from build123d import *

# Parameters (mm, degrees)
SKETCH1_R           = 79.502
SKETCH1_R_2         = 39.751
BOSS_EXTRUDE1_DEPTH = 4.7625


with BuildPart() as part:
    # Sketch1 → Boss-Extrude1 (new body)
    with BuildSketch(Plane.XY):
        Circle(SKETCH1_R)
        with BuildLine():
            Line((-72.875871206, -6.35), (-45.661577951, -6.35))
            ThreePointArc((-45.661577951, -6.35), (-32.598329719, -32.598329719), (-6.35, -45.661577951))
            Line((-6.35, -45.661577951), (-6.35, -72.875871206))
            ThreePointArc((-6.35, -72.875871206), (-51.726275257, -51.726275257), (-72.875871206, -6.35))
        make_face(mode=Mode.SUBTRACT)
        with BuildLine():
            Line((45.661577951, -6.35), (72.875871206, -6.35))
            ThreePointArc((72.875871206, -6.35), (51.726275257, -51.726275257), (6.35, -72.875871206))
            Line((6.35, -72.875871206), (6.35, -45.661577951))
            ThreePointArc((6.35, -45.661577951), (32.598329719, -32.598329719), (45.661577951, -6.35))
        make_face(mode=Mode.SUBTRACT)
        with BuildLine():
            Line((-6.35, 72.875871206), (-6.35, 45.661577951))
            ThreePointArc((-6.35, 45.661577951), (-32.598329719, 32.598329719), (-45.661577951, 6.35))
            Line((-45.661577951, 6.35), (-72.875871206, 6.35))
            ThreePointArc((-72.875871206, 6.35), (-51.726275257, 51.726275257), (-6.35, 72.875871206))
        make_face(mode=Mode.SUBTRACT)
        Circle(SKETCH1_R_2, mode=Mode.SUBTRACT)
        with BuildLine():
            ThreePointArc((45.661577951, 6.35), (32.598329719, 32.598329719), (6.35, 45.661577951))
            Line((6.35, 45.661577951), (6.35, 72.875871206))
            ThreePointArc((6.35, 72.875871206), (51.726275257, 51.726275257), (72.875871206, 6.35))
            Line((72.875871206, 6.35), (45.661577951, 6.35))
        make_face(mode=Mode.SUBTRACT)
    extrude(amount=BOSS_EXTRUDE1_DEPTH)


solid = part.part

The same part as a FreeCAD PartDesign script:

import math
import FreeCAD as App
import Part
import Sketcher
from FreeCAD import Vector
Q = App.Units.Quantity

doc = App.newDocument("Part")
body = doc.addObject("PartDesign::Body", "Body")

# Sketch on XY plane
sketch1 = body.newObject("Sketcher::SketchObject", "Sketch")
sketch1.AttachmentSupport = (doc.getObject("XY_Plane"), [""])
sketch1.MapMode = "FlatFace"
sketch1.addGeometry([
    Part.Circle(Vector(0, 0, 0), Vector(0, 0, 1), 79.502),  # 0
    Part.ArcOfCircle(Part.Circle(Vector(0, 0, 0), Vector(0, 0, 1), 73.152), math.radians(-175.020141), math.radians(-94.979859)),  # 1
    Part.LineSegment(Vector(-72.875871, -6.35, 0), Vector(-45.661578, -6.35, 0)),  # 2
    Part.ArcOfCircle(Part.Circle(Vector(0, 0, 0), Vector(0, 0, 1), 46.101), math.radians(-172.082849), math.radians(-97.917151)),  # 3
    Part.LineSegment(Vector(-6.35, -45.661578, 0), Vector(-6.35, -72.875871, 0)),  # 4
    Part.ArcOfCircle(Part.Circle(Vector(0, 0, 0), Vector(0, 0, 1), 46.101), math.radians(-82.082849), math.radians(-7.917151)),  # 5
    Part.LineSegment(Vector(45.661578, -6.35, 0), Vector(72.875871, -6.35, 0)),  # 6
    Part.ArcOfCircle(Part.Circle(Vector(0, 0, 0), Vector(0, 0, 1), 73.152), math.radians(-85.020141), math.radians(-4.979859)),  # 7
    Part.LineSegment(Vector(6.35, -72.875871, 0), Vector(6.35, -45.661578, 0)),  # 8
    Part.ArcOfCircle(Part.Circle(Vector(0, 0, 0), Vector(0, 0, 1), 73.152), math.radians(94.979859), math.radians(175.020141)),  # 9
    Part.LineSegment(Vector(-6.35, 72.875871, 0), Vector(-6.35, 45.661578, 0)),  # 10
    Part.ArcOfCircle(Part.Circle(Vector(0, 0, 0), Vector(0, 0, 1), 46.101), math.radians(97.917151), math.radians(172.082849)),  # 11
    Part.LineSegment(Vector(-45.661578, 6.35, 0), Vector(-72.875871, 6.35, 0)),  # 12
    Part.Circle(Vector(0, 0, 0), Vector(0, 0, 1), 39.751),  # 13
    Part.LineSegment(Vector(72.875871, 6.35, 0), Vector(45.661578, 6.35, 0)),  # 14
    Part.ArcOfCircle(Part.Circle(Vector(0, 0, 0), Vector(0, 0, 1), 46.101), math.radians(7.917151), math.radians(82.082849)),  # 15
    Part.LineSegment(Vector(6.35, 45.661578, 0), Vector(6.35, 72.875871, 0)),  # 16
    Part.ArcOfCircle(Part.Circle(Vector(0, 0, 0), Vector(0, 0, 1), 73.152), math.radians(4.979859), math.radians(85.020141)),  # 17
], False)
sketch1.addConstraint([
    Sketcher.Constraint("Coincident", 1, 1, 2, 1),
    Sketcher.Constraint("Coincident", 2, 2, 3, 1),
    Sketcher.Constraint("Coincident", 3, 2, 4, 1),
    Sketcher.Constraint("Coincident", 4, 2, 1, 2),
    Sketcher.Constraint("Coincident", 5, 2, 6, 1),
    Sketcher.Constraint("Coincident", 6, 2, 7, 2),
    Sketcher.Constraint("Coincident", 7, 1, 8, 1),
    Sketcher.Constraint("Coincident", 8, 2, 5, 1),
    Sketcher.Constraint("Coincident", 9, 1, 10, 1),
    Sketcher.Constraint("Coincident", 10, 2, 11, 1),
    Sketcher.Constraint("Coincident", 11, 2, 12, 1),
    Sketcher.Constraint("Coincident", 12, 2, 9, 2),
    Sketcher.Constraint("Coincident", 14, 2, 15, 1),
    Sketcher.Constraint("Coincident", 15, 2, 16, 1),
    Sketcher.Constraint("Coincident", 16, 2, 17, 2),
    Sketcher.Constraint("Coincident", 17, 1, 14, 1),
    Sketcher.Constraint("Horizontal", 2),
    Sketcher.Constraint("Vertical", 4),
    Sketcher.Constraint("Horizontal", 6),
    Sketcher.Constraint("Vertical", 8),
    Sketcher.Constraint("Vertical", 10),
    Sketcher.Constraint("Horizontal", 12),
    Sketcher.Constraint("Horizontal", 14),
    Sketcher.Constraint("Vertical", 16),
    Sketcher.Constraint("Coincident", 0, 3, -1, 1),
    Sketcher.Constraint("Coincident", 1, 3, -1, 1),
    Sketcher.Constraint("Coincident", 3, 3, -1, 1),
    Sketcher.Constraint("Coincident", 5, 3, -1, 1),
    Sketcher.Constraint("Coincident", 7, 3, -1, 1),
    Sketcher.Constraint("Coincident", 9, 3, -1, 1),
    Sketcher.Constraint("Coincident", 11, 3, -1, 1),
    Sketcher.Constraint("Coincident", 13, 3, -1, 1),
    Sketcher.Constraint("Coincident", 15, 3, -1, 1),
    Sketcher.Constraint("Coincident", 17, 3, -1, 1),
    Sketcher.Constraint("Equal", 3, 5),
    Sketcher.Constraint("Equal", 1, 7),
    Sketcher.Constraint("Equal", 7, 9),
    Sketcher.Constraint("Equal", 5, 11),
    Sketcher.Constraint("Equal", 11, 15),
    Sketcher.Constraint("Equal", 9, 17),
    Sketcher.Constraint("Horizontal", 2, 2, 5, 2),
    Sketcher.Constraint("Horizontal", 4, 2, 7, 1),
    Sketcher.Constraint("Horizontal", 12, 2, 14, 2),
    Sketcher.Constraint("Horizontal", 10, 2, 15, 2),
    Sketcher.Constraint("Vertical", 4, 2, 9, 1),
    Sketcher.Constraint("Vertical", 2, 2, 11, 2),
    Sketcher.Constraint("Equal", 14, 4),
    Sketcher.Constraint("Diameter", 0, Q("6.26 in")),
    Sketcher.Constraint("Diameter", 13, Q("3.13 in")),
    Sketcher.Constraint("Radius", 1, Q("2.88 in")),
    Sketcher.Constraint("Radius", 3, Q("1.815 in")),
    Sketcher.Constraint("DistanceX", 4, 2, 7, 1, Q("0.5 in")),
])
pad1 = body.newObject("PartDesign::Pad", "Pad")
pad1.Profile = sketch1
pad1.Length = Q("0.1875 in")

doc.recompute()
